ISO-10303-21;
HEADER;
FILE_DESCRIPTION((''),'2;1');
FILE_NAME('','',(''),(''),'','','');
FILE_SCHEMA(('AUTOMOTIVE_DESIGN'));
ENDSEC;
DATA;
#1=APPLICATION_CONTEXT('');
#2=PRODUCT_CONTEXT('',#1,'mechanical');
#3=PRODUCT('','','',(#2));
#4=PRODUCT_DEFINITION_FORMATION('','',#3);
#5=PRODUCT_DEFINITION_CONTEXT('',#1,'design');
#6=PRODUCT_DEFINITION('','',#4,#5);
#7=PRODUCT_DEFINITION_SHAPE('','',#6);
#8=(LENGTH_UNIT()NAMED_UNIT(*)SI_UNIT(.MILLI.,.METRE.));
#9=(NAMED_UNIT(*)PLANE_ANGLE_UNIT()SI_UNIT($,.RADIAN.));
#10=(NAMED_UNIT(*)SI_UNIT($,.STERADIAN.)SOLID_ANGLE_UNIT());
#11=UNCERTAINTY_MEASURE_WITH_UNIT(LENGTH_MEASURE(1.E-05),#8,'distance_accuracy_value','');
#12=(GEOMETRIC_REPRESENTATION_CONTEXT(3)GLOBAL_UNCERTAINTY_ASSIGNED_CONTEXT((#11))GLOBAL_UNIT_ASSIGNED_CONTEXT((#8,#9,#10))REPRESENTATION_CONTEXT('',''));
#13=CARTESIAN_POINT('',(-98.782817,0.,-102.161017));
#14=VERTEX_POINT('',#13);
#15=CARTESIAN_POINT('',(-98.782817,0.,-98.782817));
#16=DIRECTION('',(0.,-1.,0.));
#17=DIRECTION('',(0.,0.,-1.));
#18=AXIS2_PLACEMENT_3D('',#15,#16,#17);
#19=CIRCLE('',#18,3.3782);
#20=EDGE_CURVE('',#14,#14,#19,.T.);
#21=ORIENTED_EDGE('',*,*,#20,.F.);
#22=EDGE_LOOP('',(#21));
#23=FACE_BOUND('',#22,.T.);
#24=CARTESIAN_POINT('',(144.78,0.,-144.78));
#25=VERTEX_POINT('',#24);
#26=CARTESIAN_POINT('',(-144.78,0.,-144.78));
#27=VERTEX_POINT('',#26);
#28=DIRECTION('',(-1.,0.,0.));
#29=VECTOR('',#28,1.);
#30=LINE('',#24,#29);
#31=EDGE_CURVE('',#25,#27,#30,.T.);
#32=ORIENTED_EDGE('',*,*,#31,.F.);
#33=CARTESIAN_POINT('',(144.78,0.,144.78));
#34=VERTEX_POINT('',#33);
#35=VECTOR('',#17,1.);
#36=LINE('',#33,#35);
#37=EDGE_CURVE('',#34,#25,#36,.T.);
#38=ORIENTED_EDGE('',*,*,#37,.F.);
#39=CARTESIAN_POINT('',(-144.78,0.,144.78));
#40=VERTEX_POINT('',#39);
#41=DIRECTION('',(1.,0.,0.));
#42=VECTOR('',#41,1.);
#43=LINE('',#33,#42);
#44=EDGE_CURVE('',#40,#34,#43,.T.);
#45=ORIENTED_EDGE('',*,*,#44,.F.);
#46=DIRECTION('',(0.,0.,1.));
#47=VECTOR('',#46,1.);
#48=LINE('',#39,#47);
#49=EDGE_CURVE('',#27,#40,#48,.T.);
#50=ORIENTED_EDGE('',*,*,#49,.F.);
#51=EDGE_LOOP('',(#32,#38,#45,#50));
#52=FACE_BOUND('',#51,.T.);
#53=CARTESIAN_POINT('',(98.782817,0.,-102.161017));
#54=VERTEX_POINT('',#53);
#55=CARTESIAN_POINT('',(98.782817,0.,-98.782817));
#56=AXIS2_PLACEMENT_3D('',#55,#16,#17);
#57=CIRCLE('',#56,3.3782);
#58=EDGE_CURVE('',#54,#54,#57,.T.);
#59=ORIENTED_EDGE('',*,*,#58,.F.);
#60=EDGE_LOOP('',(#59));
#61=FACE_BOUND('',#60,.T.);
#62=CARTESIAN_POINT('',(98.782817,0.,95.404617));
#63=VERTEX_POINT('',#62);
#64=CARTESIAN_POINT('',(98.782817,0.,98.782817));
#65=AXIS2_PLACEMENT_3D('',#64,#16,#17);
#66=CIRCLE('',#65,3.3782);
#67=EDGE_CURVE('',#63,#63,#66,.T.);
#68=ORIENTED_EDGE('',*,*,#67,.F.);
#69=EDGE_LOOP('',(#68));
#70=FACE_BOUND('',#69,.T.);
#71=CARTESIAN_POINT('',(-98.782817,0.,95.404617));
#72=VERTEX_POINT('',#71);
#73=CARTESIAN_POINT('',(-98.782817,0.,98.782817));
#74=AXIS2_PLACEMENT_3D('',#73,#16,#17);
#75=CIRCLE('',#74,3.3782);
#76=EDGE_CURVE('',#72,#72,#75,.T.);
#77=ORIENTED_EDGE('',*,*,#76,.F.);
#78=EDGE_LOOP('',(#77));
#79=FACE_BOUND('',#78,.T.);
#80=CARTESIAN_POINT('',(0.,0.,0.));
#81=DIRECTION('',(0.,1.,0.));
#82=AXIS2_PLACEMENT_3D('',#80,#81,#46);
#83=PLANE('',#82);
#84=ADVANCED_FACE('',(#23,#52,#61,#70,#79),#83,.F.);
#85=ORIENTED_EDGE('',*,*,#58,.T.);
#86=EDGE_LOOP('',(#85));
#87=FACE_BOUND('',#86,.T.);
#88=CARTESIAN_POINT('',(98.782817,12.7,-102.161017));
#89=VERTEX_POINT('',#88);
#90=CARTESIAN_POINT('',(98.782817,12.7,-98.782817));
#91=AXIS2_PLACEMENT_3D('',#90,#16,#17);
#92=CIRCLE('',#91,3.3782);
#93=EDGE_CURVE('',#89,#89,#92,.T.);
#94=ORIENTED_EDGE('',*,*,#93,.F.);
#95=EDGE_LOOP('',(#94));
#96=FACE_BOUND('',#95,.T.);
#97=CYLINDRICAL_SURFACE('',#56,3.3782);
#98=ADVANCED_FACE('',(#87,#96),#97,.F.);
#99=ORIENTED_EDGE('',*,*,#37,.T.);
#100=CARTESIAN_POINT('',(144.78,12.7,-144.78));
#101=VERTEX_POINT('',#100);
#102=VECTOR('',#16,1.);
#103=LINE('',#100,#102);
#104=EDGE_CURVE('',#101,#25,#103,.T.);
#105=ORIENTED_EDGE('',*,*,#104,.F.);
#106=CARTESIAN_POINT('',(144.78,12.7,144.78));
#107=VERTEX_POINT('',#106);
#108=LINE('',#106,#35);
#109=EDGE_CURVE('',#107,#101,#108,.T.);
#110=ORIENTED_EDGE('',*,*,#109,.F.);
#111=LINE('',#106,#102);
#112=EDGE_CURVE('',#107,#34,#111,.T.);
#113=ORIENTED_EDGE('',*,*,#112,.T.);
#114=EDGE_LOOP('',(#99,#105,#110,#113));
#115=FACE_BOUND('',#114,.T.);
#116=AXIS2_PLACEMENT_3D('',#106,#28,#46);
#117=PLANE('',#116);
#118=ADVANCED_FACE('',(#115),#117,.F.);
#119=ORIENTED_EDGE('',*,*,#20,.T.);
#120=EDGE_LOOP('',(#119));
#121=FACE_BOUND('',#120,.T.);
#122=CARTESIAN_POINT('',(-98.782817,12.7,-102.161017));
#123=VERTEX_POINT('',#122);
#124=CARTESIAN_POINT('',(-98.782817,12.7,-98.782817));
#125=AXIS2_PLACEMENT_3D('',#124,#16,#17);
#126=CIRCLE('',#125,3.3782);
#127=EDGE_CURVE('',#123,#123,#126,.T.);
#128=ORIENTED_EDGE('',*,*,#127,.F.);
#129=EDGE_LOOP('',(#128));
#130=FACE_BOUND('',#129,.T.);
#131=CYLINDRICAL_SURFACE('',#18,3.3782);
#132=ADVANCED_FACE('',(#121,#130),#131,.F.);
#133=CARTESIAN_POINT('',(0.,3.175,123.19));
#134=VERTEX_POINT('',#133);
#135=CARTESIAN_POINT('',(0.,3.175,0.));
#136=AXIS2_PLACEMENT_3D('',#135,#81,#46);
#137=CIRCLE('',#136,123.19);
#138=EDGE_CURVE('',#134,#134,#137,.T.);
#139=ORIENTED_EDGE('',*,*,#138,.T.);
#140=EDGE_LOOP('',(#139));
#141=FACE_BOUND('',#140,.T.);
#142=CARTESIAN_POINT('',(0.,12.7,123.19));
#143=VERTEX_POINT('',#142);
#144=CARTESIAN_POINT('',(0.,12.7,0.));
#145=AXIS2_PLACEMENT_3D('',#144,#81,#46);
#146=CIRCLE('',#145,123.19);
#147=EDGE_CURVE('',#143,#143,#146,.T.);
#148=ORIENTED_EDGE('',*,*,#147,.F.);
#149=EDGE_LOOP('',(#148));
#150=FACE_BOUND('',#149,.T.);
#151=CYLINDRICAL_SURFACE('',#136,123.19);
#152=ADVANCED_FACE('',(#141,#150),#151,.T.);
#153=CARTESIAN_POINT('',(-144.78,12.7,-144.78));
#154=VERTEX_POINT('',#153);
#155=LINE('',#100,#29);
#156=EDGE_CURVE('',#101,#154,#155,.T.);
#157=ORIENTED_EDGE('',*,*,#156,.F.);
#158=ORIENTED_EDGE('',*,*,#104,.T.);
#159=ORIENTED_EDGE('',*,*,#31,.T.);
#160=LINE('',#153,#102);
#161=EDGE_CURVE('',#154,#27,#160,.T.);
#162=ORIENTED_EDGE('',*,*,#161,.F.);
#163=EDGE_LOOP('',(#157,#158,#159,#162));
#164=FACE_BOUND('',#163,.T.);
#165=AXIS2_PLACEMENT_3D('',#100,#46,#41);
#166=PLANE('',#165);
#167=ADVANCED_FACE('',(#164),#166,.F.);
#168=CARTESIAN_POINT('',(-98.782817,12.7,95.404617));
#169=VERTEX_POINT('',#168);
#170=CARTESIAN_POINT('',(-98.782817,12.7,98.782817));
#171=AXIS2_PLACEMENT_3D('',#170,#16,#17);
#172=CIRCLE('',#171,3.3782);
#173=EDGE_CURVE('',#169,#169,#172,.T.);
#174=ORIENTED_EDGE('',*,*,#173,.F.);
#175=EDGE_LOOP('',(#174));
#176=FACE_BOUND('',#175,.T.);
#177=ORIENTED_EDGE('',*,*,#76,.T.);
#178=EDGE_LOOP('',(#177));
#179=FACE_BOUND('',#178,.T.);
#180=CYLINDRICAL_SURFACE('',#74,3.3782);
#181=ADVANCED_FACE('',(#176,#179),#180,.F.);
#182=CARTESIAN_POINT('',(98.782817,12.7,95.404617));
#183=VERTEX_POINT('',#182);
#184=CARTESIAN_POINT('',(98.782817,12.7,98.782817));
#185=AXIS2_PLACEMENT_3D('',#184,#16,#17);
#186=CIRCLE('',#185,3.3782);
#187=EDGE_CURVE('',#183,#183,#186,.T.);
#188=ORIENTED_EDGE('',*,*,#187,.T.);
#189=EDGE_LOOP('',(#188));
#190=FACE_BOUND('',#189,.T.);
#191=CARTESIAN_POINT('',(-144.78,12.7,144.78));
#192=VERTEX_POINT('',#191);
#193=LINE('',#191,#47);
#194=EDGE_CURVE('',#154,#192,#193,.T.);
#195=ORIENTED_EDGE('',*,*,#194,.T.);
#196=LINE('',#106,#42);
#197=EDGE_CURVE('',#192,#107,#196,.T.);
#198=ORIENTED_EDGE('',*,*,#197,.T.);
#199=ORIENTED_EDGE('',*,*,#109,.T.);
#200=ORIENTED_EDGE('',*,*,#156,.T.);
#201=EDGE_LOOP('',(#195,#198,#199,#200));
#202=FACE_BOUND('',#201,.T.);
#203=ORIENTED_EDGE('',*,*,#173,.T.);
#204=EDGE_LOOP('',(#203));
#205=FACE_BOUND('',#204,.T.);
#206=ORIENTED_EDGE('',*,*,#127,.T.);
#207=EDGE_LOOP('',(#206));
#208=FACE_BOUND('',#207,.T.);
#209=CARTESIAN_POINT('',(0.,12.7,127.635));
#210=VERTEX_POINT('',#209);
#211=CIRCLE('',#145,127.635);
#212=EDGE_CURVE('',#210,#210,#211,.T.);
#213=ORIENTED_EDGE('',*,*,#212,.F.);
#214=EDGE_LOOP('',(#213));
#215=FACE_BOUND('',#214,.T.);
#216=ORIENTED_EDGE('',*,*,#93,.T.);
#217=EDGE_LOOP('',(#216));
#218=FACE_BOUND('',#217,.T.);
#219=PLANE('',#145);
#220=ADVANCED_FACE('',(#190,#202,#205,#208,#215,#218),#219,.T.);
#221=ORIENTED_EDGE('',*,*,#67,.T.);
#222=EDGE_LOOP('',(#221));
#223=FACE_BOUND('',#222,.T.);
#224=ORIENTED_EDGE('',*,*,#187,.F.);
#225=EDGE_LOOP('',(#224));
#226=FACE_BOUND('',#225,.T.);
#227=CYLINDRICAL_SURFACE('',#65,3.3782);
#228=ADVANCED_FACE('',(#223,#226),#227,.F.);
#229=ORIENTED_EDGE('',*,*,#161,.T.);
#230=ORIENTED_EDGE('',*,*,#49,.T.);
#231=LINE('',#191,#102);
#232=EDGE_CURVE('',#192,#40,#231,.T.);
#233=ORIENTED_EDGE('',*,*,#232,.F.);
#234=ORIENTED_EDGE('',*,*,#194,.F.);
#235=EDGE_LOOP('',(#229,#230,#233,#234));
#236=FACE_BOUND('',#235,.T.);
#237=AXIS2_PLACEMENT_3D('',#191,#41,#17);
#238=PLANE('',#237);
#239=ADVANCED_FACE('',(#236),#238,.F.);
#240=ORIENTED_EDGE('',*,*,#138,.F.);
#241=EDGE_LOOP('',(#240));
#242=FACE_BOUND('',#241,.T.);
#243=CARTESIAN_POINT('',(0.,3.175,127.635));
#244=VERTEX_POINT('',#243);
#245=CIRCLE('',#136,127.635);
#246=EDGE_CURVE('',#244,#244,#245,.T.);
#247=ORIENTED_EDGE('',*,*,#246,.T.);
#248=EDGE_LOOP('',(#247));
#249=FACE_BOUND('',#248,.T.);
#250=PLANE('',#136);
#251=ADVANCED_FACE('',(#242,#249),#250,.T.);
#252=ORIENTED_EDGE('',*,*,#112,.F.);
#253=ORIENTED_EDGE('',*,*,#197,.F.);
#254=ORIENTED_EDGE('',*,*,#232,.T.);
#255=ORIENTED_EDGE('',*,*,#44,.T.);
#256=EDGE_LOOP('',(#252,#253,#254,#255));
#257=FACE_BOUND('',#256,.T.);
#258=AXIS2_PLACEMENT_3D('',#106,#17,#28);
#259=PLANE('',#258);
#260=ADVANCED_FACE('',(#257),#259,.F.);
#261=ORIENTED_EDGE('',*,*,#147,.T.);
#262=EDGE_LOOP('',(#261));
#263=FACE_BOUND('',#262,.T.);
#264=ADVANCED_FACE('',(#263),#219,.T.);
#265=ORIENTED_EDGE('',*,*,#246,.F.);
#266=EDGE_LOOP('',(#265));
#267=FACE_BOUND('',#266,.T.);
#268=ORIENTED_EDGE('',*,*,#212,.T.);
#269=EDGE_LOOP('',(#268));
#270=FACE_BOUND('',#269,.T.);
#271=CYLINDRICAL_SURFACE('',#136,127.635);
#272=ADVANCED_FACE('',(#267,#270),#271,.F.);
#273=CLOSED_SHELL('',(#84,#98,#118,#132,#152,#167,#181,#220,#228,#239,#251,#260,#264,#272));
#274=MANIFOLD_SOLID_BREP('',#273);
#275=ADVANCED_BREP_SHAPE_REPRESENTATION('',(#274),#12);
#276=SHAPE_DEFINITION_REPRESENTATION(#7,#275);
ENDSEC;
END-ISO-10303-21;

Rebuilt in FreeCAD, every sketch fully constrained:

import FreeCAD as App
import Part
import Sketcher

V = App.Vector
Q = App.Units.Quantity

doc = App.newDocument("Part")
body = doc.addObject("PartDesign::Body", "Body")

# Sketch on XZ plane
sketch1 = doc.addObject("Sketcher::SketchObject", "Sketch")
body.addObject(sketch1)
sketch1.AttachmentSupport = (doc.XZ_Plane, [""])
sketch1.MapMode = "FlatFace"
sketch1.addGeometry(Part.LineSegment(V(-145, -145, 0), V(-145, 145, 0)), False)
sketch1.addGeometry(Part.LineSegment(V(-145, 145, 0), V(145, 145, 0)), False)
sketch1.addGeometry(Part.LineSegment(V(145, 145, 0), V(145, -145, 0)), False)
sketch1.addGeometry(Part.LineSegment(V(145, -145, 0), V(-145, -145, 0)), False)
sketch1.addConstraint(Sketcher.Constraint("Coincident", 0, 2, 1, 1))
sketch1.addConstraint(Sketcher.Constraint("Coincident", 1, 2, 2, 1))
sketch1.addConstraint(Sketcher.Constraint("Coincident", 2, 2, 3, 1))
sketch1.addConstraint(Sketcher.Constraint("Coincident", 3, 2, 0, 1))
sketch1.addConstraint(Sketcher.Constraint("Vertical", 0))
sketch1.addConstraint(Sketcher.Constraint("Horizontal", 1))
sketch1.addConstraint(Sketcher.Constraint("Vertical", 2))
sketch1.addConstraint(Sketcher.Constraint("Horizontal", 3))
sketch1.addConstraint(Sketcher.Constraint("Symmetric", 0, 2, 2, 2, -1, 1))
sketch1.addConstraint(Sketcher.Constraint("Equal", 3, 0))
sketch1.addConstraint(Sketcher.Constraint("DistanceX", 1, 1, 1, 2, Q("11.4 in")))
pad1 = doc.addObject("PartDesign::Pad", "Pad")
body.addObject(pad1)
pad1.Profile = sketch1
pad1.Length = Q("0.5 in")
pad1.Reversed = True

# Sketch on XZ plane
sketch2 = doc.addObject("Sketcher::SketchObject", "Sketch001")
body.addObject(sketch2)
sketch2.AttachmentSupport = (doc.XZ_Plane, [""])
sketch2.MapMode = "FlatFace"
sketch2.AttachmentOffset = App.Placement(V(0, 0, -0.5 * 25.4), App.Rotation())
sketch2.addGeometry(Part.Circle(V(0, 0, 0), V(0, 0, 1), 128), False)
sketch2.addGeometry(Part.Circle(V(0, 0, 0), V(0, 0, 1), 123), False)
sketch2.addConstraint(Sketcher.Constraint("Coincident", 0, 3, -1, 1))
sketch2.addConstraint(Sketcher.Constraint("Coincident", 1, 3, -1, 1))
sketch2.addConstraint(Sketcher.Constraint("Diameter", 1, Q("9.7 in")))
sketch2.addConstraint(Sketcher.Constraint("Diameter", 0, Q("10.05 in")))
pocket1 = doc.addObject("PartDesign::Pocket", "Pocket")
body.addObject(pocket1)
pocket1.Profile = sketch2
pocket1.Length = Q("0.375 in")
pocket1.Reversed = True

# Sketch on XZ plane
sketch3 = doc.addObject("Sketcher::SketchObject", "Sketch002")
body.addObject(sketch3)
sketch3.AttachmentSupport = (doc.XZ_Plane, [""])
sketch3.MapMode = "FlatFace"
sketch3.addGeometry(Part.Circle(V(-98.8, 98.8, 0), V(0, 0, 1), 3.4), False)
sketch3.addConstraint(Sketcher.Constraint("Diameter", 0, Q("0.266 in")))
sketch3.addConstraint(Sketcher.Constraint("DistanceX", 0, 3, -1, 1, 98.782817))
sketch3.addConstraint(Sketcher.Constraint("DistanceY", -1, 1, 0, 3, 98.782817))
doc.recompute()
hole = doc.addObject("PartDesign::Hole", "Hole")
body.addObject(hole)
hole.Profile = sketch3
hole.ThreadType = "None"
hole.Diameter = Q("0.266 in")
hole.DepthType = "ThroughAll"
doc.recompute()

polarpattern = doc.addObject("PartDesign::PolarPattern", "PolarPattern")
body.addObject(polarpattern)
polarpattern.Originals = [hole]
polarpattern.Axis = (doc.Y_Axis, [""])
polarpattern.Angle = 360
polarpattern.Occurrences = 4
body.Tip = polarpattern

doc.recompute()
